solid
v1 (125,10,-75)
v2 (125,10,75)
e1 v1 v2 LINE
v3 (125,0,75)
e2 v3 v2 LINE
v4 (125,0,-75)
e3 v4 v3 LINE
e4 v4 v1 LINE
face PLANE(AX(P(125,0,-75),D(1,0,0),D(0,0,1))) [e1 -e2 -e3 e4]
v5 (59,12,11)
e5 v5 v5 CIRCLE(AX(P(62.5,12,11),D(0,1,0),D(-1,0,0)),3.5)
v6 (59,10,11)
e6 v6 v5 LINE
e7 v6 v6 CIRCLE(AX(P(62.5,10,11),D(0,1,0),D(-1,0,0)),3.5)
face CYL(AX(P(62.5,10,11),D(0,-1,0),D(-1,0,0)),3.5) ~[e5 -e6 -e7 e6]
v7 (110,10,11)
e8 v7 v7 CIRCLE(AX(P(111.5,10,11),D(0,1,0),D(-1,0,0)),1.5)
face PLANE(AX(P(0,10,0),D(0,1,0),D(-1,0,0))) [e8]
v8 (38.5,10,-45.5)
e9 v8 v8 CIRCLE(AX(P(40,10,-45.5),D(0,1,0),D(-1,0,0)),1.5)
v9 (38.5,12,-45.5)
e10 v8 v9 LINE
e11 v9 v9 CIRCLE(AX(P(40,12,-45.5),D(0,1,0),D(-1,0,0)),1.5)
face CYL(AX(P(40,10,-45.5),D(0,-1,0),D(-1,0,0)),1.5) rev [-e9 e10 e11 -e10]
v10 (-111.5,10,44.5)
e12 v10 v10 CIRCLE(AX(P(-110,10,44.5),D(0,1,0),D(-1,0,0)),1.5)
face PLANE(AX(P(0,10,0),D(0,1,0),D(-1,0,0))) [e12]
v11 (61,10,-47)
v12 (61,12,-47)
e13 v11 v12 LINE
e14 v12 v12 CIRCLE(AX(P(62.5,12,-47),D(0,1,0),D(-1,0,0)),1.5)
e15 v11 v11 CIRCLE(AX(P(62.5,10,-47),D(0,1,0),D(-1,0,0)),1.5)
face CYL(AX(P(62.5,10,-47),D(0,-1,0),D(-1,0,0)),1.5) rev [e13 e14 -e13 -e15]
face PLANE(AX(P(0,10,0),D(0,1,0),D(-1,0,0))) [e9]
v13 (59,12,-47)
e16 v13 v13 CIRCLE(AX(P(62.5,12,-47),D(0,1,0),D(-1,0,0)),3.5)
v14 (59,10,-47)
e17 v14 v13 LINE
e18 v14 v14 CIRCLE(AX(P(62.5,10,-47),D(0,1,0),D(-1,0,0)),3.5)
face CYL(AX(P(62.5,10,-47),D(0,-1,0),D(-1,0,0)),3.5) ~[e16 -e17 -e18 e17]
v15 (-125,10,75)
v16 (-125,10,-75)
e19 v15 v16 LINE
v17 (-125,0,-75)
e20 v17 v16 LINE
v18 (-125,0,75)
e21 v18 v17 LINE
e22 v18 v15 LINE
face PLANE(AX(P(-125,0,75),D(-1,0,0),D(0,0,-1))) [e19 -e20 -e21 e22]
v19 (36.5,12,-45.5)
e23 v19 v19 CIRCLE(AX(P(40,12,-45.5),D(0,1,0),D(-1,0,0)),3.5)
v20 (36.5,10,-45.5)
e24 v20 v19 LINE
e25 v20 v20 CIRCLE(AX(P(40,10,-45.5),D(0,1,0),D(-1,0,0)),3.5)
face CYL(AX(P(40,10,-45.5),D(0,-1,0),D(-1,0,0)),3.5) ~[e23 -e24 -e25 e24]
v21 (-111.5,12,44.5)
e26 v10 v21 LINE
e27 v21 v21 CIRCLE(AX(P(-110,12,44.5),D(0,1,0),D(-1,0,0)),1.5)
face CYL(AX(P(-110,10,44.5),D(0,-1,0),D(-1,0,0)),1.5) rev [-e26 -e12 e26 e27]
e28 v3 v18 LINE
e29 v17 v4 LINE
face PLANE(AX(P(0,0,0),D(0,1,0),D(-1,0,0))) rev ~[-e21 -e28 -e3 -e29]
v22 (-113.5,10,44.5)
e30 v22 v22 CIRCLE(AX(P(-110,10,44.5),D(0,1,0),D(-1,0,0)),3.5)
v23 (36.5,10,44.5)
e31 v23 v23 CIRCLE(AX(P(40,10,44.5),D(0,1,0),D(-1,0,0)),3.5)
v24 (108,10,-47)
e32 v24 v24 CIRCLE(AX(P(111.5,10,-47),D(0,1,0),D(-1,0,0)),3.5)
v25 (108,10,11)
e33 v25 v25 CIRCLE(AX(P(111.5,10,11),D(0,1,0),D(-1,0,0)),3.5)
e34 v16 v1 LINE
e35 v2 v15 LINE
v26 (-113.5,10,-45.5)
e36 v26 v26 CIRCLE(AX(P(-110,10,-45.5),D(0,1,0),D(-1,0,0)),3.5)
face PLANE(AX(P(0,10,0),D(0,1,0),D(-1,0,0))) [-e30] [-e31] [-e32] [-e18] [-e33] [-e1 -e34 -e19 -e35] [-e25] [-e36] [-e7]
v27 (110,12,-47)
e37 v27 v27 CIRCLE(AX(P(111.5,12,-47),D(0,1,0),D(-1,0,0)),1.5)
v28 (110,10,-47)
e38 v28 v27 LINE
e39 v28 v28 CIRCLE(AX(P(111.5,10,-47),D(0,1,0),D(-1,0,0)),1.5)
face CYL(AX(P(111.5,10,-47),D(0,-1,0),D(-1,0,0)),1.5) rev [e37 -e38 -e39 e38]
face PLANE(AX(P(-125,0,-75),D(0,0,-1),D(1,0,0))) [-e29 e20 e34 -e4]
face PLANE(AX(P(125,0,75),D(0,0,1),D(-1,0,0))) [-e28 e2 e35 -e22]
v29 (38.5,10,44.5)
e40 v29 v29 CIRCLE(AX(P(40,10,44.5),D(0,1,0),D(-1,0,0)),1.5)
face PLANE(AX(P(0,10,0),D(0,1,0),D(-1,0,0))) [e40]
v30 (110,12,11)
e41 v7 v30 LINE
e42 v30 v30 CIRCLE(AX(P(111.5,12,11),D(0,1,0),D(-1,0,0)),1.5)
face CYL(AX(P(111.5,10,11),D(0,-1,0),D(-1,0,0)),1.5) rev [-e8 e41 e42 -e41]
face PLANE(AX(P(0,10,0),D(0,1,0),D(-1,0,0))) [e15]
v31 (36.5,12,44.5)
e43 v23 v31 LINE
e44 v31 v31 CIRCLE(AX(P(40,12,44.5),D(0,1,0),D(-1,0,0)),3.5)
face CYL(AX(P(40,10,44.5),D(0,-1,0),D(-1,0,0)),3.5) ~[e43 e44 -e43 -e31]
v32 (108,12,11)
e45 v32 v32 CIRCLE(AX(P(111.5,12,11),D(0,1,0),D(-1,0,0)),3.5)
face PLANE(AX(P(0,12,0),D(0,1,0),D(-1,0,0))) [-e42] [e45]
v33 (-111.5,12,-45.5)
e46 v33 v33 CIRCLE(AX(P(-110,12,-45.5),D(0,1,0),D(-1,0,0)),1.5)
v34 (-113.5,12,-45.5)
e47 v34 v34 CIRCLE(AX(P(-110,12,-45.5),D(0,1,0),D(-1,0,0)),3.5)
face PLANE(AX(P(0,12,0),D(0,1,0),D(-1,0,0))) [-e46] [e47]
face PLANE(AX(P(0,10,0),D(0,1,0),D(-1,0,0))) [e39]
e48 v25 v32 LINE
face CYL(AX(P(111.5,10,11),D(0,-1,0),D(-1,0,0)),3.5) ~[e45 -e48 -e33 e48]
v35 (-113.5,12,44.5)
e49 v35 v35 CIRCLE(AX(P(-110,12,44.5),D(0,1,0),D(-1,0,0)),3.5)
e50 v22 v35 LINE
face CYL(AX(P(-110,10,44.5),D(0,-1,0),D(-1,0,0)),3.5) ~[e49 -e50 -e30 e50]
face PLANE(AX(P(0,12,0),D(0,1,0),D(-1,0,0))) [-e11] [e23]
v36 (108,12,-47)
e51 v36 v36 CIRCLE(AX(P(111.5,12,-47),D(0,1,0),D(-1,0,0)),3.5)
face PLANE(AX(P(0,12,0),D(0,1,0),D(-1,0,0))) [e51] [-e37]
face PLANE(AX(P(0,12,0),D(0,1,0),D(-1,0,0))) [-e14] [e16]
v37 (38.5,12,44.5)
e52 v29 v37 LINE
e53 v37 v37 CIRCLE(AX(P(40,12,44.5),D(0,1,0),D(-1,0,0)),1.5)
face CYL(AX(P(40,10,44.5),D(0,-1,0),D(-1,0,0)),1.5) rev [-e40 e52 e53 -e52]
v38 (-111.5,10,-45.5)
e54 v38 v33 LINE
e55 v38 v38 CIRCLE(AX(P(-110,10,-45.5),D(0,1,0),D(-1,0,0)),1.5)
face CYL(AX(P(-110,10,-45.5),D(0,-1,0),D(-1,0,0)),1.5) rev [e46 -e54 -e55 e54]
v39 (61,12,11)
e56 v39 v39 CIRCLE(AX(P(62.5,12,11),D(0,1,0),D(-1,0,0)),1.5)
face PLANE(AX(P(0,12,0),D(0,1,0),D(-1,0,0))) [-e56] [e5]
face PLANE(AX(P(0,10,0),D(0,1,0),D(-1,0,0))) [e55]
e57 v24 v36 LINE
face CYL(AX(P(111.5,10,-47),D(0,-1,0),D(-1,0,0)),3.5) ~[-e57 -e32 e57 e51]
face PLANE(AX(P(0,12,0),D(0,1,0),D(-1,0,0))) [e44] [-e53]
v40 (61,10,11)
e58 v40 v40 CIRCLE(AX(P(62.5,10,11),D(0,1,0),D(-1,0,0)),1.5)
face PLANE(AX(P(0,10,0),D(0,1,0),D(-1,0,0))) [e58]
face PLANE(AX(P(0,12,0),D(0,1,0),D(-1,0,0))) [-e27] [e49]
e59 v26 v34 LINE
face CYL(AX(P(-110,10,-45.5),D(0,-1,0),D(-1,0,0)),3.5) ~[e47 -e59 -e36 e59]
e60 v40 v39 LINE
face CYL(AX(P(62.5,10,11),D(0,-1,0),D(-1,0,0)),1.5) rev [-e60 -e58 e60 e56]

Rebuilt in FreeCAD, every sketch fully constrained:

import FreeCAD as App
import Part
import Sketcher
from FreeCAD import Vector


def add_polygon(sketch, points):
    """Adds a closed chain of lines whose ends are joined by coincident constraints."""
    first, n = sketch.GeometryCount, len(points)
    for a, b in zip(points, points[1:] + points[:1]):
        sketch.addGeometry(Part.LineSegment(App.Vector(*a, 0), App.Vector(*b, 0)), False)
    for i in range(n):
        sketch.addConstraint(Sketcher.Constraint("Coincident", first + i, 2, first + (i + 1) % n, 1))

doc = App.newDocument("Part")
body = doc.addObject("PartDesign::Body", "Body")

# Sketch on XZ plane
sketch1 = doc.addObject("Sketcher::SketchObject", "Sketch")
body.addObject(sketch1)
sketch1.AttachmentSupport = (doc.XZ_Plane, [""])
sketch1.MapMode = "FlatFace"
add_polygon(sketch1, [(-125, 75), (125, 75), (125, -75), (-125, -75)])  # lines 0-3
sketch1.addConstraint(Sketcher.Constraint("Horizontal", 0))
sketch1.addConstraint(Sketcher.Constraint("Vertical", 1))
sketch1.addConstraint(Sketcher.Constraint("Horizontal", 2))
sketch1.addConstraint(Sketcher.Constraint("Vertical", 3))
sketch1.addConstraint(Sketcher.Constraint("Symmetric", 0, 2, 2, 2, -1, 1))
sketch1.addConstraint(Sketcher.Constraint("DistanceX", 0, 1, 0, 2, 250.0))
sketch1.addConstraint(Sketcher.Constraint("DistanceY", 1, 2, 1, 1, 150.0))
pad1 = doc.addObject("PartDesign::Pad", "Pad")
body.addObject(pad1)
pad1.Profile = sketch1
pad1.Length = 10
pad1.Reversed = True

# Sketch on XZ plane
sketch2 = doc.addObject("Sketcher::SketchObject", "Sketch001")
body.addObject(sketch2)
sketch2.AttachmentSupport = (doc.XZ_Plane, [""])
sketch2.MapMode = "FlatFace"
sketch2.AttachmentOffset = App.Placement(Vector(0, 0, -10), App.Rotation())
sketch2.addGeometry(Part.Circle(Vector(-110, -45.5, 0), Vector(0, 0, 1), 3.5), False)
sketch2.addGeometry(Part.Circle(Vector(-110, -45.5, 0), Vector(0, 0, 1), 1.5), False)
sketch2.addGeometry(Part.Circle(Vector(-110, 44.5, 0), Vector(0, 0, 1), 3.5), False)
sketch2.addGeometry(Part.Circle(Vector(-110, 44.5, 0), Vector(0, 0, 1), 1.5), False)
sketch2.addGeometry(Part.Circle(Vector(40, 44.5, 0), Vector(0, 0, 1), 3.5), False)
sketch2.addGeometry(Part.Circle(Vector(40, 44.5, 0), Vector(0, 0, 1), 1.5), False)
sketch2.addGeometry(Part.Circle(Vector(40, -45.5, 0), Vector(0, 0, 1), 3.5), False)
sketch2.addGeometry(Part.Circle(Vector(40, -45.5, 0), Vector(0, 0, 1), 1.5), False)
sketch2.addGeometry(Part.Circle(Vector(62.5, -47, 0), Vector(0, 0, 1), 3.5), False)
sketch2.addGeometry(Part.Circle(Vector(62.5, -47, 0), Vector(0, 0, 1), 1.5), False)
sketch2.addGeometry(Part.Circle(Vector(62.5, 11, 0), Vector(0, 0, 1), 3.5), False)
sketch2.addGeometry(Part.Circle(Vector(62.5, 11, 0), Vector(0, 0, 1), 1.5), False)
sketch2.addGeometry(Part.Circle(Vector(111.5, 11, 0), Vector(0, 0, 1), 3.5), False)
sketch2.addGeometry(Part.Circle(Vector(111.5, 11, 0), Vector(0, 0, 1), 1.5), False)
sketch2.addGeometry(Part.Circle(Vector(111.5, -47, 0), Vector(0, 0, 1), 3.5), False)
sketch2.addGeometry(Part.Circle(Vector(111.5, -47, 0), Vector(0, 0, 1), 1.5), False)
sketch2.addConstraint(Sketcher.Constraint("Coincident", 1, 3, 0, 3))
sketch2.addConstraint(Sketcher.Constraint("Coincident", 3, 3, 2, 3))
sketch2.addConstraint(Sketcher.Constraint("Coincident", 5, 3, 4, 3))
sketch2.addConstraint(Sketcher.Constraint("Coincident", 7, 3, 6, 3))
sketch2.addConstraint(Sketcher.Constraint("Coincident", 9, 3, 8, 3))
sketch2.addConstraint(Sketcher.Constraint("Coincident", 11, 3, 10, 3))
sketch2.addConstraint(Sketcher.Constraint("Coincident", 13, 3, 12, 3))
sketch2.addConstraint(Sketcher.Constraint("Coincident", 15, 3, 14, 3))
sketch2.addConstraint(Sketcher.Constraint("Equal", 0, 2))
sketch2.addConstraint(Sketcher.Constraint("Equal", 1, 3))
sketch2.addConstraint(Sketcher.Constraint("Equal", 2, 4))
sketch2.addConstraint(Sketcher.Constraint("Equal", 3, 5))
sketch2.addConstraint(Sketcher.Constraint("Equal", 4, 6))
sketch2.addConstraint(Sketcher.Constraint("Equal", 5, 7))
sketch2.addConstraint(Sketcher.Constraint("Equal", 6, 8))
sketch2.addConstraint(Sketcher.Constraint("Equal", 7, 9))
sketch2.addConstraint(Sketcher.Constraint("Equal", 8, 10))
sketch2.addConstraint(Sketcher.Constraint("Equal", 9, 11))
sketch2.addConstraint(Sketcher.Constraint("Equal", 10, 12))
sketch2.addConstraint(Sketcher.Constraint("Equal", 11, 13))
sketch2.addConstraint(Sketcher.Constraint("Equal", 12, 14))
sketch2.addConstraint(Sketcher.Constraint("Equal", 13, 15))
sketch2.addConstraint(Sketcher.Constraint("Horizontal", 3, 3, 4, 3))
sketch2.addConstraint(Sketcher.Constraint("Horizontal", 1, 3, 6, 3))
sketch2.addConstraint(Sketcher.Constraint("Horizontal", 11, 3, 12, 3))
sketch2.addConstraint(Sketcher.Constraint("Horizontal", 9, 3, 14, 3))
sketch2.addConstraint(Sketcher.Constraint("Vertical", 1, 3, 2, 3))
sketch2.addConstraint(Sketcher.Constraint("Vertical", 5, 3, 6, 3))
sketch2.addConstraint(Sketcher.Constraint("Vertical", 9, 3, 10, 3))
sketch2.addConstraint(Sketcher.Constraint("Vertical", 13, 3, 14, 3))
sketch2.addConstraint(Sketcher.Constraint("Diameter", 0, 7.0))
sketch2.addConstraint(Sketcher.Constraint("Diameter", 1, 3.0))
sketch2.addConstraint(Sketcher.Constraint("DistanceY", 0, 3, 2, 3, 90.0))
sketch2.addConstraint(Sketcher.Constraint("DistanceX", 2, 3, 4, 3, 150.0))
sketch2.addConstraint(Sketcher.Constraint("DistanceY", 8, 3, 10, 3, 58.0))
sketch2.addConstraint(Sketcher.Constraint("DistanceX", 10, 3, 12, 3, 49.0))
sketch2.addConstraint(Sketcher.Constraint("DistanceX", 0, 3, -1, 1, 110.0))
sketch2.addConstraint(Sketcher.Constraint("DistanceY", 8, 3, -1, 1, 47.0))
sketch2.addConstraint(Sketcher.Constraint("DistanceY", 0, 3, -1, 1, 45.5))
sketch2.addConstraint(Sketcher.Constraint("DistanceX", -1, 1, 8, 3, 62.5))
pad2 = doc.addObject("PartDesign::Pad", "Pad001")
body.addObject(pad2)
pad2.Profile = sketch2
pad2.Length = 2
pad2.Reversed = True

doc.recompute()
